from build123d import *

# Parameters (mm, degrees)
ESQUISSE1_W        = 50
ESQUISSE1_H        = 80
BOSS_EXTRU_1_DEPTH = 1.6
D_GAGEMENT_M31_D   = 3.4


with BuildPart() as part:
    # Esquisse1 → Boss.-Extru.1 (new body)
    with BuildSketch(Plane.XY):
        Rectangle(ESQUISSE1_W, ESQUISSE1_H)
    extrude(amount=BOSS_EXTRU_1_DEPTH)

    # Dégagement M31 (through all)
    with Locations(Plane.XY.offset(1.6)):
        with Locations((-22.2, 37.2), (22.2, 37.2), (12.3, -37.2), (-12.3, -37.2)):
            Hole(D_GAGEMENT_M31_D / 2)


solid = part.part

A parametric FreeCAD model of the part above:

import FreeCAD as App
import Part
import Sketcher


def add_polygon(sketch, points):
    """Adds a closed chain of lines whose ends are joined by coincident constraints."""
    first, n = sketch.GeometryCount, len(points)
    for a, b in zip(points, points[1:] + points[:1]):
        sketch.addGeometry(Part.LineSegment(App.Vector(*a, 0), App.Vector(*b, 0)), False)
    for i in range(n):
        sketch.addConstraint(Sketcher.Constraint("Coincident", first + i, 2, first + (i + 1) % n, 1))

doc = App.newDocument("Part")
body = doc.addObject("PartDesign::Body", "Body")

sketch1 = body.newObject("Sketcher::SketchObject", "Sketch")
sketch1.AttachmentSupport = (doc.getObject("XY_Plane"), [""])
sketch1.MapMode = "FlatFace"
add_polygon(sketch1, [(-25, 40), (-25, -40), (25, -40), (25, 40)])
sketch1.addConstraint([
    Sketcher.Constraint("Vertical", 0),
    Sketcher.Constraint("Horizontal", 1),
    Sketcher.Constraint("Vertical", 2),
    Sketcher.Constraint("Horizontal", 3),
    Sketcher.Constraint("Symmetric", 0, 2, 2, 2, -1, 1),
    Sketcher.Constraint("DistanceX", 1, 1, 1, 2, 50.0),
    Sketcher.Constraint("DistanceY", 0, 2, 0, 1, 80.0),
])
pad1 = body.newObject("PartDesign::Pad", "Pad")
pad1.Profile = sketch1
pad1.Length = 1.6

sketch2 = body.newObject("Sketcher::SketchObject", "Sketch001")
sketch2.AttachmentSupport = (doc.getObject("XY_Plane"), [""])
sketch2.MapMode = "FlatFace"
sketch2.AttachmentOffset = App.Placement(App.Vector(0, 0, 1.6), App.Rotation())
sketch2.addGeometry([
    Part.Circle(App.Vector(-22.2, 37.2, 0), App.Vector(0, 0, 1), 1.7),
    Part.Circle(App.Vector(22.2, 37.2, 0), App.Vector(0, 0, 1), 1.7),
    Part.Circle(App.Vector(12.3, -37.2, 0), App.Vector(0, 0, 1), 1.7),
    Part.Circle(App.Vector(-12.3, -37.2, 0), App.Vector(0, 0, 1), 1.7),
], False)
sketch2.addConstraint([
    Sketcher.Constraint("Equal", 0, 1),
    Sketcher.Constraint("Equal", 1, 2),
    Sketcher.Constraint("Equal", 2, 3),
    Sketcher.Constraint("Symmetric", 0, 3, 1, 3, -2),
    Sketcher.Constraint("Symmetric", 2, 3, 3, 3, -2),
    Sketcher.Constraint("Diameter", 0, 3.4),
    Sketcher.Constraint("DistanceX", 0, 3, -1, 1, 22.2),
    Sketcher.Constraint("DistanceY", -1, 1, 0, 3, 37.2),
    Sketcher.Constraint("DistanceX", -1, 1, 2, 3, 12.3),
    Sketcher.Constraint("DistanceY", 2, 3, -1, 1, 37.2),
])
doc.recompute()
hole = body.newObject("PartDesign::Hole", "Hole")
hole.Profile = sketch2
hole.ThreadType = "None"
hole.Diameter = 3.4
hole.DepthType = "ThroughAll"

doc.recompute()
